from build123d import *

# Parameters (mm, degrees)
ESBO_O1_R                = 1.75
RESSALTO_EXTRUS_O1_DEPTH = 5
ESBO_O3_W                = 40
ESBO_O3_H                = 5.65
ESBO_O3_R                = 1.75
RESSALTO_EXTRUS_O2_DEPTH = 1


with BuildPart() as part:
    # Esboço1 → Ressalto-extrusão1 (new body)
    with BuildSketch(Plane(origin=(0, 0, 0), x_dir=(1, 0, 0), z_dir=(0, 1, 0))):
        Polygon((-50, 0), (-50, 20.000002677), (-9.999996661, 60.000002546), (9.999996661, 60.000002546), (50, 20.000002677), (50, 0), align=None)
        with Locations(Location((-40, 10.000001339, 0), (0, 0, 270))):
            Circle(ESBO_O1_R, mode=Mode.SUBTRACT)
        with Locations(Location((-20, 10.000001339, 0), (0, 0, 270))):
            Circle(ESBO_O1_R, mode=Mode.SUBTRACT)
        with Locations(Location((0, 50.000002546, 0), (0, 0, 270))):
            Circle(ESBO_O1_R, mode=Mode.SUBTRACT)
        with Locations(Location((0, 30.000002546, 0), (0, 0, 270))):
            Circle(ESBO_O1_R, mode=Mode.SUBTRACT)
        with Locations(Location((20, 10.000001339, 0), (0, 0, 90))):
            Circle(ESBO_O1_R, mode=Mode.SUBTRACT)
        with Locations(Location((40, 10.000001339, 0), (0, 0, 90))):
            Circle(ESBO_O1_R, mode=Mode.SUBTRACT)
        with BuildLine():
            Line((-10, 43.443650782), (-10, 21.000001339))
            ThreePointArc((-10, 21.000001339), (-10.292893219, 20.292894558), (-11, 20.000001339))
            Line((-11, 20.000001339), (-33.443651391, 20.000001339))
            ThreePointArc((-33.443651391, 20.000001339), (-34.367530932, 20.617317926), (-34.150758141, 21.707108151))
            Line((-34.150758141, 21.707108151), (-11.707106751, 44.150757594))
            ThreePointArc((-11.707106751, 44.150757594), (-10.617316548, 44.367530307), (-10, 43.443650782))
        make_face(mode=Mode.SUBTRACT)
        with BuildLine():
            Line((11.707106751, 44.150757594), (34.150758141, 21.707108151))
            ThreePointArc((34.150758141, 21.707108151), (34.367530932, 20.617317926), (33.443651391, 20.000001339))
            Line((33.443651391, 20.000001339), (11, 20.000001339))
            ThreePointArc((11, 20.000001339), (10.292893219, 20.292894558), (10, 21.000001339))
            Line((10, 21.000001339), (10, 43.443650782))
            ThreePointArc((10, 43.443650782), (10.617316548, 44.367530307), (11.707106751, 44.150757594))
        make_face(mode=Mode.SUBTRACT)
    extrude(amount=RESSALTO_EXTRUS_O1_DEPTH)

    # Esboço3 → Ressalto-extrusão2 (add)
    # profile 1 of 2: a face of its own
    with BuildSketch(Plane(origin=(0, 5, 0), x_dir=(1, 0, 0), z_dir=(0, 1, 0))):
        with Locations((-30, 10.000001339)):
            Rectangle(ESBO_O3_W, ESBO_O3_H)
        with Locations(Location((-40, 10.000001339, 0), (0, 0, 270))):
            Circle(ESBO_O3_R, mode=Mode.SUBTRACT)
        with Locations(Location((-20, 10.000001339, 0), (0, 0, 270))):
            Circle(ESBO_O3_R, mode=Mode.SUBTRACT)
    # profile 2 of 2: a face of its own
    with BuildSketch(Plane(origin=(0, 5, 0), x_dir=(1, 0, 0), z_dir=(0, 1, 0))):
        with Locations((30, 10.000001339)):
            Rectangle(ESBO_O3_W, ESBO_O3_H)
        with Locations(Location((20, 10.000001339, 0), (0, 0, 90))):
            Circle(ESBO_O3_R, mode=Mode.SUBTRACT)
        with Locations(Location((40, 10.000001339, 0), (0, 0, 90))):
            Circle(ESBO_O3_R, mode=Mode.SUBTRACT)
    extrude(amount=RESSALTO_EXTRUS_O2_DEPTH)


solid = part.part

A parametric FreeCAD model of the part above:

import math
import FreeCAD as App
import Part
import Sketcher
from FreeCAD import Vector

doc = App.newDocument("Part")
body = doc.addObject("PartDesign::Body", "Body")

sketch1 = body.newObject("Sketcher::SketchObject", "Sketch")
sketch1.AttachmentSupport = (doc.getObject("XZ_Plane"), [""])
sketch1.MapMode = "FlatFace"
sketch1.addGeometry([
    Part.LineSegment(Vector(-50, -20, 0), Vector(-50, 0, 0)),
    Part.LineSegment(Vector(-50, 0, 0), Vector(50, 0, 0)),
    Part.LineSegment(Vector(50, 0, 0), Vector(50, -20, 0)),
    Part.LineSegment(Vector(50, -20, 0), Vector(10, -60, 0)),
    Part.LineSegment(Vector(10, -60, 0), Vector(-10, -60, 0)),
    Part.LineSegment(Vector(-10, -60, 0), Vector(-50, -20, 0)),
    Part.Circle(Vector(40, -10, 0), Vector(0, 0, 1), 1.8),
    Part.Circle(Vector(20, -10, 0), Vector(0, 0, 1), 1.8),
    Part.Circle(Vector(-20, -10, 0), Vector(0, 0, 1), 1.8),
    Part.Circle(Vector(-40, -10, 0), Vector(0, 0, 1), 1.8),
    Part.LineSegment(Vector(11.7, -44.2, 0), Vector(34.2, -21.7, 0)),
    Part.ArcOfCircle(Part.Circle(Vector(33.4, -21, 0), Vector(0, 0, 1), 1), math.radians(-45), math.radians(90)),
    Part.LineSegment(Vector(33.4, -20, 0), Vector(11, -20, 0)),
    Part.ArcOfCircle(Part.Circle(Vector(11, -21, 0), Vector(0, 0, 1), 1), math.radians(90), math.radians(180)),
    Part.LineSegment(Vector(10, -21, 0), Vector(10, -43.4, 0)),
    Part.ArcOfCircle(Part.Circle(Vector(11, -43.4, 0), Vector(0, 0, 1), 1), math.radians(180), math.radians(315)),
    Part.Circle(Vector(0, -30, 0), Vector(0, 0, 1), 1.8),
    Part.LineSegment(Vector(-10, -43.4, 0), Vector(-10, -21, 0)),
    Part.ArcOfCircle(Part.Circle(Vector(-11, -21, 0), Vector(0, 0, 1), 1), math.radians(0), math.radians(90)),
    Part.LineSegment(Vector(-11, -20, 0), Vector(-33.4, -20, 0)),
    Part.ArcOfCircle(Part.Circle(Vector(-33.4, -21, 0), Vector(0, 0, 1), 1), math.radians(90), math.radians(225)),
    Part.LineSegment(Vector(-34.2, -21.7, 0), Vector(-11.7, -44.2, 0)),
    Part.ArcOfCircle(Part.Circle(Vector(-11, -43.4, 0), Vector(0, 0, 1), 1), math.radians(-135), math.radians(0)),
    Part.Circle(Vector(0, -50, 0), Vector(0, 0, 1), 1.8),
], False)
sketch1.addConstraint([
    Sketcher.Constraint("Coincident", 0, 2, 1, 1),
    Sketcher.Constraint("Coincident", 1, 2, 2, 1),
    Sketcher.Constraint("Coincident", 2, 2, 3, 1),
    Sketcher.Constraint("Coincident", 3, 2, 4, 1),
    Sketcher.Constraint("Coincident", 4, 2, 5, 1),
    Sketcher.Constraint("Coincident", 5, 2, 0, 1),
    Sketcher.Constraint("Tangent", 10, 2, 11, 1),
    Sketcher.Constraint("Tangent", 11, 2, 12, 1),
    Sketcher.Constraint("Tangent", 12, 2, 13, 1),
    Sketcher.Constraint("Tangent", 13, 2, 14, 1),
    Sketcher.Constraint("Tangent", 14, 2, 15, 1),
    Sketcher.Constraint("Tangent", 15, 2, 10, 1),
    Sketcher.Constraint("Tangent", 17, 2, 18, 1),
    Sketcher.Constraint("Tangent", 18, 2, 19, 1),
    Sketcher.Constraint("Tangent", 19, 2, 20, 1),
    Sketcher.Constraint("Tangent", 20, 2, 21, 1),
    Sketcher.Constraint("Tangent", 21, 2, 22, 1),
    Sketcher.Constraint("Tangent", 22, 2, 17, 1),
    Sketcher.Constraint("Vertical", 0),
    Sketcher.Constraint("Horizontal", 1),
    Sketcher.Constraint("Vertical", 2),
    Sketcher.Constraint("Horizontal", 4),
    Sketcher.Constraint("Horizontal", 12),
    Sketcher.Constraint("Vertical", 14),
    Sketcher.Constraint("Vertical", 17),
    Sketcher.Constraint("Horizontal", 19),
    Sketcher.Constraint("Equal", 6, 7),
    Sketcher.Constraint("Equal", 7, 8),
    Sketcher.Constraint("Equal", 8, 9),
    Sketcher.Constraint("Equal", 11, 13),
    Sketcher.Constraint("Equal", 13, 15),
    Sketcher.Constraint("Equal", 9, 16),
    Sketcher.Constraint("Equal", 15, 18),
    Sketcher.Constraint("Equal", 18, 20),
    Sketcher.Constraint("Equal", 20, 22),
    Sketcher.Constraint("Equal", 16, 23),
    Sketcher.Constraint("Symmetric", 0, 2, 1, 2, -1, 1),
    Sketcher.Constraint("Symmetric", 7, 3, 8, 3, -2),
    Sketcher.Constraint("Symmetric", 6, 3, 9, 3, -2),
    Sketcher.Constraint("Symmetric", 13, 3, 18, 3, -2),
    Sketcher.Constraint("Symmetric", 10, 2, 20, 2, -2),
    Sketcher.Constraint("PointOnObject", 16, 3, -2),
    Sketcher.Constraint("PointOnObject", 23, 3, -2),
    Sketcher.Constraint("Perpendicular", 3, 5),
    Sketcher.Constraint("Perpendicular", 5, 10),
    Sketcher.Constraint("Perpendicular", 10, 21),
    Sketcher.Constraint("Horizontal", 6, 3, 7, 3),
    Sketcher.Constraint("Horizontal", 2, 2, 5, 2),
    Sketcher.Constraint("Horizontal", 5, 2, 11, 2),
    Sketcher.Constraint("Radius", 11, 1.0),
    Sketcher.Constraint("Diameter", 6, 3.5),
    Sketcher.Constraint("DistanceX", 1, 1, 1, 2, 100.0),
    Sketcher.Constraint("DistanceX", -1, 1, 6, 3, 40.0),
    Sketcher.Constraint("DistanceY", 6, 3, -1, 1, 10.000001),
    Sketcher.Constraint("DistanceX", -1, 1, 7, 3, 20.0),
    Sketcher.Constraint("DistanceY", 11, 3, -1, 1, 21.000001),
    Sketcher.Constraint("DistanceX", -1, 1, 13, 3, 11.0),
    Sketcher.Constraint("DistanceY", 16, 3, 13, 3, 9.000001),
    Sketcher.Constraint("DistanceY", 23, 3, 16, 3, 20.0),
    Sketcher.Constraint("DistanceY", 3, 2, 23, 3, 10.0),
    Sketcher.Constraint("DistanceX", 12, 2, 12, 1, 22.443651),
])
pad1 = body.newObject("PartDesign::Pad", "Pad")
pad1.Profile = sketch1
pad1.Length = 5
pad1.Reversed = True

sketch2 = body.newObject("Sketcher::SketchObject", "Sketch001")
sketch2.AttachmentSupport = (doc.getObject("XZ_Plane"), [""])
sketch2.MapMode = "FlatFace"
sketch2.AttachmentOffset = App.Placement(Vector(0, 0, -5), App.Rotation())
sketch2.addGeometry([
    Part.LineSegment(Vector(-50, -12.8, 0), Vector(-50, -7.2, 0)),
    Part.LineSegment(Vector(-50, -7.2, 0), Vector(-10, -7.2, 0)),
    Part.LineSegment(Vector(-10, -7.2, 0), Vector(-10, -12.8, 0)),
    Part.LineSegment(Vector(-10, -12.8, 0), Vector(-50, -12.8, 0)),
    Part.Circle(Vector(-40, -10, 0), Vector(0, 0, 1), 1.8),
    Part.Circle(Vector(-20, -10, 0), Vector(0, 0, 1), 1.8),
    Part.LineSegment(Vector(10, -12.8, 0), Vector(10, -7.2, 0)),
    Part.LineSegment(Vector(10, -7.2, 0), Vector(50, -7.2, 0)),
    Part.LineSegment(Vector(50, -7.2, 0), Vector(50, -12.8, 0)),
    Part.LineSegment(Vector(50, -12.8, 0), Vector(10, -12.8, 0)),
    Part.Circle(Vector(20, -10, 0), Vector(0, 0, 1), 1.8),
    Part.Circle(Vector(40, -10, 0), Vector(0, 0, 1), 1.8),
], False)
sketch2.addConstraint([
    Sketcher.Constraint("Coincident", 0, 2, 1, 1),
    Sketcher.Constraint("Coincident", 1, 2, 2, 1),
    Sketcher.Constraint("Coincident", 2, 2, 3, 1),
    Sketcher.Constraint("Coincident", 3, 2, 0, 1),
    Sketcher.Constraint("Coincident", 6, 2, 7, 1),
    Sketcher.Constraint("Coincident", 7, 2, 8, 1),
    Sketcher.Constraint("Coincident", 8, 2, 9, 1),
    Sketcher.Constraint("Coincident", 9, 2, 6, 1),
    Sketcher.Constraint("Vertical", 0),
    Sketcher.Constraint("Horizontal", 1),
    Sketcher.Constraint("Vertical", 2),
    Sketcher.Constraint("Horizontal", 3),
    Sketcher.Constraint("Vertical", 6),
    Sketcher.Constraint("Horizontal", 7),
    Sketcher.Constraint("Vertical", 8),
    Sketcher.Constraint("Horizontal", 9),
    Sketcher.Constraint("Equal", 4, 5),
    Sketcher.Constraint("Equal", 5, 10),
    Sketcher.Constraint("Equal", 10, 11),
    Sketcher.Constraint("Symmetric", 5, 3, 10, 3, -2),
    Sketcher.Constraint("Symmetric", 4, 3, 11, 3, -2),
    Sketcher.Constraint("Symmetric", 1, 2, 6, 2, -2),
    Sketcher.Constraint("Symmetric", 3, 2, 8, 2, -2),
    Sketcher.Constraint("Horizontal", 4, 3, 5, 3),
    Sketcher.Constraint("Diameter", 4, 3.5),
    Sketcher.Constraint("DistanceX", 1, 1, 1, 2, 40.0),
    Sketcher.Constraint("DistanceX", 4, 3, -1, 1, 40.0),
    Sketcher.Constraint("DistanceY", 4, 3, -1, 1, 10.000001),
    Sketcher.Constraint("DistanceX", 5, 3, -1, 1, 20.0),
    Sketcher.Constraint("DistanceX", 0, 2, -1, 1, 50.0),
    Sketcher.Constraint("DistanceY", 0, 1, 0, 2, 5.65),
    Sketcher.Constraint("DistanceY", 0, 2, -1, 1, 7.175001),
])
pad2 = body.newObject("PartDesign::Pad", "Pad001")
pad2.Profile = sketch2
pad2.Length = 1
pad2.Reversed = True

doc.recompute()
